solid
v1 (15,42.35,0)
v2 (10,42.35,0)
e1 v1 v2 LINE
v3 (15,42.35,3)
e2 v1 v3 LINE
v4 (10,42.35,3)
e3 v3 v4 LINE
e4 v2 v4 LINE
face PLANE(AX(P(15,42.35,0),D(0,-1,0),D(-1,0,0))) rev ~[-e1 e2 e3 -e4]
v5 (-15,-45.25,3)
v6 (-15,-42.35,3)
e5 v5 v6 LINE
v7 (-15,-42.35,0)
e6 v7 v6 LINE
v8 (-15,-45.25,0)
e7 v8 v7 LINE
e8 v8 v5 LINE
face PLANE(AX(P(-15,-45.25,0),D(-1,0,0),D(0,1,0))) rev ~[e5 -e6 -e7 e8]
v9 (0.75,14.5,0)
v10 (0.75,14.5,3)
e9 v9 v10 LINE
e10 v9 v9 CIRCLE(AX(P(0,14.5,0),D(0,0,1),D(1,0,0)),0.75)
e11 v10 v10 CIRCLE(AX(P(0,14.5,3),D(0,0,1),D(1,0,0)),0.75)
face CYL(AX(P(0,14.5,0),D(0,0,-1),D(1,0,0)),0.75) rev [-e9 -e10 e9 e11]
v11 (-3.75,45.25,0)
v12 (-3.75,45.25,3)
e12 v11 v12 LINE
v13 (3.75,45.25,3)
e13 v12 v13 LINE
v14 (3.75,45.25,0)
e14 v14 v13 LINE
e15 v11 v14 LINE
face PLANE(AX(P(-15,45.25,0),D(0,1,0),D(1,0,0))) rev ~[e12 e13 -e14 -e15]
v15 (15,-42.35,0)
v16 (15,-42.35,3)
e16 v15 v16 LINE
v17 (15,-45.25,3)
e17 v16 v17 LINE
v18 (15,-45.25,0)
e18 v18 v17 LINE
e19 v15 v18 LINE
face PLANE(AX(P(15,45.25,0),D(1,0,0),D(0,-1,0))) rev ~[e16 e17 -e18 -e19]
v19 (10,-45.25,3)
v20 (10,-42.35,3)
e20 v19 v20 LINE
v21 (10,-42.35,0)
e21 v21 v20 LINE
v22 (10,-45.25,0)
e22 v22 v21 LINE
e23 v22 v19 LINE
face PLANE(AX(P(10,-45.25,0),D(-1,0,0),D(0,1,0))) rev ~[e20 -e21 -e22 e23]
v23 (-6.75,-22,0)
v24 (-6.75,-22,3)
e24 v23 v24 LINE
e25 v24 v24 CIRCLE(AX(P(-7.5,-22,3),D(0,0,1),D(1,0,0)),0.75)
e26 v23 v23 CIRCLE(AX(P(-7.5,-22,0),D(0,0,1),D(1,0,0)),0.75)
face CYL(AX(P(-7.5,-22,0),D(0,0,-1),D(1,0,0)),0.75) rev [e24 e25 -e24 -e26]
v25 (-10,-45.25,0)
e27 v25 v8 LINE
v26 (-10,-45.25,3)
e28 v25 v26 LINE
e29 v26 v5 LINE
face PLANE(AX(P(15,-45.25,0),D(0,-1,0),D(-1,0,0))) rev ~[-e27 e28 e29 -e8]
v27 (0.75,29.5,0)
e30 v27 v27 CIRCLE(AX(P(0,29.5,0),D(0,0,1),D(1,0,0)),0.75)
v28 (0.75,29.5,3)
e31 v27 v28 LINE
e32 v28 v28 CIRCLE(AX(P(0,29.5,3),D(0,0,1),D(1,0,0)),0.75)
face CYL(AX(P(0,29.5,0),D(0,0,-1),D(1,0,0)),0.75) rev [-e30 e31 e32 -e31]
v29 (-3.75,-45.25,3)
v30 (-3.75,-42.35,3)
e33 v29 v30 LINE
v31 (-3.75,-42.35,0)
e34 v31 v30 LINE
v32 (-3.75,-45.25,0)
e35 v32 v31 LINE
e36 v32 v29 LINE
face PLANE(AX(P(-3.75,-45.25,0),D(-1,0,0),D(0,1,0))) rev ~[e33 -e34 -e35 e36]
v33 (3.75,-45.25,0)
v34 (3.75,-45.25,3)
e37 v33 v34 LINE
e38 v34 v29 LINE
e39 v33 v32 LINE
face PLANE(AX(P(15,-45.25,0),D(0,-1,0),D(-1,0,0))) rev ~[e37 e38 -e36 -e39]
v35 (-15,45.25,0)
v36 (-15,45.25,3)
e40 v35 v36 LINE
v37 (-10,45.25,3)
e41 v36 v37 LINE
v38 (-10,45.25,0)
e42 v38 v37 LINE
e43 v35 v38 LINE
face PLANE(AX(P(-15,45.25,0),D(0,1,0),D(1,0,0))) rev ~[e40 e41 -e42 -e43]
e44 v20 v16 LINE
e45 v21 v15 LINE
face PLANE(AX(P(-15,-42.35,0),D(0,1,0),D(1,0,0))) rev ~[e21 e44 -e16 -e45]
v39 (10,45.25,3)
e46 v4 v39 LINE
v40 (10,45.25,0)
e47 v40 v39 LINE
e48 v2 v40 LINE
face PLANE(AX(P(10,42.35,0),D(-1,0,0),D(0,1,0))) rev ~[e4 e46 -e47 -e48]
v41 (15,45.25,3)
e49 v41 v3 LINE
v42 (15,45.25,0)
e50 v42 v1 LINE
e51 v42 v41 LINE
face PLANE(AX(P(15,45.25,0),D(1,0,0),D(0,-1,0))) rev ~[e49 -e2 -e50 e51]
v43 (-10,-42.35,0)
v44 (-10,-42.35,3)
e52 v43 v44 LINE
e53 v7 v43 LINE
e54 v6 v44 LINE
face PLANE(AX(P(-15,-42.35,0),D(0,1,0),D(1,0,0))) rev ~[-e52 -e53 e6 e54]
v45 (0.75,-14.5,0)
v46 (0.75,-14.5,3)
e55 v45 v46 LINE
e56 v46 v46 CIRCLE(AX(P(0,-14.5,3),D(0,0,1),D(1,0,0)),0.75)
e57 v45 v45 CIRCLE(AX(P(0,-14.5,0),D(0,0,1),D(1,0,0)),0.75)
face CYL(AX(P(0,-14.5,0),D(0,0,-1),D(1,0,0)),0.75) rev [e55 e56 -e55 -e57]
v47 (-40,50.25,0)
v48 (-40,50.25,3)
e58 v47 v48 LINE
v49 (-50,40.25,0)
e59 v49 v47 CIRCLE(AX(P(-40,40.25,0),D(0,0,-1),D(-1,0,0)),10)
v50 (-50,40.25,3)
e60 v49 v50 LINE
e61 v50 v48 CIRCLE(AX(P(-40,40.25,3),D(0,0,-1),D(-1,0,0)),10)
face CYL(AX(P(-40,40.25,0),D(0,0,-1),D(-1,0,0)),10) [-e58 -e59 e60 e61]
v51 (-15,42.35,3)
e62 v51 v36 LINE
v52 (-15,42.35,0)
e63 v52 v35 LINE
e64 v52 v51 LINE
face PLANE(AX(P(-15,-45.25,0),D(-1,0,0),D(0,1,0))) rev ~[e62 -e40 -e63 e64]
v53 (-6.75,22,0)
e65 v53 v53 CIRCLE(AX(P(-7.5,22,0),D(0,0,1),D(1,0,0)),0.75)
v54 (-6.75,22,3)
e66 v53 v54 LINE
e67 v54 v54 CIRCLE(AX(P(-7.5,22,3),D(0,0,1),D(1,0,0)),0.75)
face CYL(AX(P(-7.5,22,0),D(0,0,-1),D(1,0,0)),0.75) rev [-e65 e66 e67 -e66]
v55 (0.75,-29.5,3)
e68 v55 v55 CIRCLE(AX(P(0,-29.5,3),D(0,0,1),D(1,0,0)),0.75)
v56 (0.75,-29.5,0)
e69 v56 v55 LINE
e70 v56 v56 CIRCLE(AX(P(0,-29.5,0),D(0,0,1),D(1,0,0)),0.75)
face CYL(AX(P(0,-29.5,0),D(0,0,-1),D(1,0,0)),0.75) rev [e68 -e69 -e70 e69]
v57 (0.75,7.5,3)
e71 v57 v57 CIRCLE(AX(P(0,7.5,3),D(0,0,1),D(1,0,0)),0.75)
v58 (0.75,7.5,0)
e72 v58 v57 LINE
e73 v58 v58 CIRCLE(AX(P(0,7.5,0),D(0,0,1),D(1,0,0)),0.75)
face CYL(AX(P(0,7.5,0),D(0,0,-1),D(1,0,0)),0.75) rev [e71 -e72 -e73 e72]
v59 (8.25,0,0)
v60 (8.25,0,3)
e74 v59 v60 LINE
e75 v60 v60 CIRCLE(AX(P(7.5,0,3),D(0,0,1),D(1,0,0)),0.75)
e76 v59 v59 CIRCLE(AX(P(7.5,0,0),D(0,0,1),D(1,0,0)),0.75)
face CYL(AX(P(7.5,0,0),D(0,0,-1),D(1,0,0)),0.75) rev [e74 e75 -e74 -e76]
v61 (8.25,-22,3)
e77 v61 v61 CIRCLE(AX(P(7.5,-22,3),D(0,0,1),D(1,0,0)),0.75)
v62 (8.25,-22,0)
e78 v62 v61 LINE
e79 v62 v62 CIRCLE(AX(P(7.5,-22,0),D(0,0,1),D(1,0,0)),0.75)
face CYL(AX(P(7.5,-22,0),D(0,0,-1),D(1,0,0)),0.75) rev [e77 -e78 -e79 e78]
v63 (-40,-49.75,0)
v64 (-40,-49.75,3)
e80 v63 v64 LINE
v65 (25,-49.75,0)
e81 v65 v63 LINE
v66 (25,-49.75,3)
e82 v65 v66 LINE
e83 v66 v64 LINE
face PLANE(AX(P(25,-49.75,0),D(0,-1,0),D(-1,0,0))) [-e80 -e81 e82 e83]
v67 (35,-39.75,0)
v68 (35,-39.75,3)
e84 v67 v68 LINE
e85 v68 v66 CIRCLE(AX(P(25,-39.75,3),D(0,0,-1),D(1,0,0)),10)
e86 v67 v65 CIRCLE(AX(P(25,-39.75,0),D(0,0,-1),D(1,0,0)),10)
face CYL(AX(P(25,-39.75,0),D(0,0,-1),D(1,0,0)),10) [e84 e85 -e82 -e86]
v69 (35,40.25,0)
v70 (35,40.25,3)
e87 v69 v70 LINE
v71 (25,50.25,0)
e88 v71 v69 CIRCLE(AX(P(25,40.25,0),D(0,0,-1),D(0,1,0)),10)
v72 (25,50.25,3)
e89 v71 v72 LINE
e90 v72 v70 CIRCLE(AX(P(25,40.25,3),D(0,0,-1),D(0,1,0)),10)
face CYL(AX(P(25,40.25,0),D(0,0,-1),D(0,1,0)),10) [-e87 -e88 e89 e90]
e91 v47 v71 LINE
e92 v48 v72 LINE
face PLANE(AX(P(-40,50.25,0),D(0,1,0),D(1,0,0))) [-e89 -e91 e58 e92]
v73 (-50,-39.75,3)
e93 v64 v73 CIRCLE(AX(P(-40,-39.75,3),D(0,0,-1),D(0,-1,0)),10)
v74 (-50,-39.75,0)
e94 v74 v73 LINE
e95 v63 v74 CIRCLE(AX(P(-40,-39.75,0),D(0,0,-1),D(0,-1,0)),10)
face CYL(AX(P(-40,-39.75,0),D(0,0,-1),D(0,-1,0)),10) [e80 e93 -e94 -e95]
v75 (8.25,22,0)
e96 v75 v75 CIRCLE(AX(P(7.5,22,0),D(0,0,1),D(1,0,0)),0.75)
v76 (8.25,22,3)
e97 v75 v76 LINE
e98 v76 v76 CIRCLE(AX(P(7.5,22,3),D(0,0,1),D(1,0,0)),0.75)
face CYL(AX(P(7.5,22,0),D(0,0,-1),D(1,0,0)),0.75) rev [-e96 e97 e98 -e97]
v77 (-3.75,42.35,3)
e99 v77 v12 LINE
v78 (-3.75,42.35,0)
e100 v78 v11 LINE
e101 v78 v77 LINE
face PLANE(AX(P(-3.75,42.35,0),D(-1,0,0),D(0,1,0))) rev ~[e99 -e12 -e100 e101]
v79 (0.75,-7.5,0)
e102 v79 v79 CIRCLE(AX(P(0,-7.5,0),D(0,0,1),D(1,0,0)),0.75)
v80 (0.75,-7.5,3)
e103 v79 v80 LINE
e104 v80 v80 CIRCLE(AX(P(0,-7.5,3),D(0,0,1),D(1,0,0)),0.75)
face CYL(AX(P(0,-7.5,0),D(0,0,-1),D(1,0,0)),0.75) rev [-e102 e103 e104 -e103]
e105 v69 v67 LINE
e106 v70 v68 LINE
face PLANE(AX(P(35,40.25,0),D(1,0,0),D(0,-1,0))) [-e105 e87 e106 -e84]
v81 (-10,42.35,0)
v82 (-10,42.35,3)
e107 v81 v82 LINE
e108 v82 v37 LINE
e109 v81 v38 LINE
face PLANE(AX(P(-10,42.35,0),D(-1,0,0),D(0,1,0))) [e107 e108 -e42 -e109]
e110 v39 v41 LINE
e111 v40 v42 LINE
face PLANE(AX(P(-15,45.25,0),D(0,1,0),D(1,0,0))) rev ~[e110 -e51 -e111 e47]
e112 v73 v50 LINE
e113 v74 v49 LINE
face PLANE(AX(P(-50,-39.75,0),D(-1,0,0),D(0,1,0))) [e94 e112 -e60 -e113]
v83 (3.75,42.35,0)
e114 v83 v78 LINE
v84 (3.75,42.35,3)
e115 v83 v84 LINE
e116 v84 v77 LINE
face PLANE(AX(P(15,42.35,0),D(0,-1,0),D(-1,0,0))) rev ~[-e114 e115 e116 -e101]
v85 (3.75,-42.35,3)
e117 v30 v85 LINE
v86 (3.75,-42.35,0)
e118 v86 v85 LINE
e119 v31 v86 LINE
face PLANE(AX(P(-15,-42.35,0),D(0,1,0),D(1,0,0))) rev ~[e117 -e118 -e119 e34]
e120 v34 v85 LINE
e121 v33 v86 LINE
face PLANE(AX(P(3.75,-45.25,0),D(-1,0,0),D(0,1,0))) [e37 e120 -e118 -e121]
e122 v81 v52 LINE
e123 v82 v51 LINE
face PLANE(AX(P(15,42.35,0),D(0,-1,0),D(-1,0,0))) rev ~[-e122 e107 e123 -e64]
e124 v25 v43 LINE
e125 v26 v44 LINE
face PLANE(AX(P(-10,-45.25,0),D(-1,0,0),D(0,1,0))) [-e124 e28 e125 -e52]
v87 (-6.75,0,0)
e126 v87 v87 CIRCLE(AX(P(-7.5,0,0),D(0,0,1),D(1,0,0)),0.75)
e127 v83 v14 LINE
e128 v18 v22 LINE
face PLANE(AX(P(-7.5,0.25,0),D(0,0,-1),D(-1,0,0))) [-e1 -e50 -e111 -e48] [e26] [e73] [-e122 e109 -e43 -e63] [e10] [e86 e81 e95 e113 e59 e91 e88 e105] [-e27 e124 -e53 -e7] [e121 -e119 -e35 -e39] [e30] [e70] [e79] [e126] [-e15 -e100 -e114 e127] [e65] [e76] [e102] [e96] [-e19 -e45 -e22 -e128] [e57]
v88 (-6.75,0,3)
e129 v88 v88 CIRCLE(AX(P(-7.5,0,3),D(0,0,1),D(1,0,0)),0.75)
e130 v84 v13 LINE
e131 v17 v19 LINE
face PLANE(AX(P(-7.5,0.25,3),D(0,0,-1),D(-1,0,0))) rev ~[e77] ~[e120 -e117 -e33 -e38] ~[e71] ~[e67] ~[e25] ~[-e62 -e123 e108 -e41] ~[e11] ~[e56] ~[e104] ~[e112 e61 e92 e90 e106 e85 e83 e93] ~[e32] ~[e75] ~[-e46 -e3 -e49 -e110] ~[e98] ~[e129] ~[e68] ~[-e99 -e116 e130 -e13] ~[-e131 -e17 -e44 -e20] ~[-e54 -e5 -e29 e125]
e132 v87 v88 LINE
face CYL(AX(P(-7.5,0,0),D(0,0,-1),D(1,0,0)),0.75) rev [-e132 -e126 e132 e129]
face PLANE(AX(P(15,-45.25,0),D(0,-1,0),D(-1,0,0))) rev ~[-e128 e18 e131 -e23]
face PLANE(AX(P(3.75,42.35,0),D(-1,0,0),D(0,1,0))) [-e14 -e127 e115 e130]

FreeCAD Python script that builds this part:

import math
import FreeCAD as App
import Part
import Sketcher

doc = App.newDocument("Part")
body = doc.addObject("PartDesign::Body", "Body")

# Sketch on XY plane
sketch1 = body.newObject("Sketcher::SketchObject", "Sketch")
sketch1.AttachmentSupport = (doc.getObject("XY_Plane"), [""])
sketch1.MapMode = "FlatFace"
sketch1.addGeometry([
    Part.ArcOfCircle(Part.Circle(App.Vector(-40, 40.2, 0), App.Vector(0, 0, 1), 10), math.radians(90), math.radians(180)),  # 0
    Part.LineSegment(App.Vector(-50, 40.2, 0), App.Vector(-50, -39.8, 0)),  # 1
    Part.ArcOfCircle(Part.Circle(App.Vector(-40, -39.8, 0), App.Vector(0, 0, 1), 10), math.radians(180), math.radians(270)),  # 2
    Part.LineSegment(App.Vector(-40, -49.8, 0), App.Vector(25, -49.8, 0)),  # 3
    Part.ArcOfCircle(Part.Circle(App.Vector(25, -39.8, 0), App.Vector(0, 0, 1), 10), math.radians(-90), math.radians(0)),  # 4
    Part.LineSegment(App.Vector(35, -39.8, 0), App.Vector(35, 40.2, 0)),  # 5
    Part.ArcOfCircle(Part.Circle(App.Vector(25, 40.2, 0), App.Vector(0, 0, 1), 10), math.radians(0), math.radians(90)),  # 6
    Part.LineSegment(App.Vector(25, 50.2, 0), App.Vector(-40, 50.2, 0)),  # 7
    Part.LineSegment(App.Vector(-15, -45.2, 0), App.Vector(-15, -42.4, 0)),  # 8
    Part.LineSegment(App.Vector(-15, -42.4, 0), App.Vector(-10, -42.4, 0)),  # 9
    Part.LineSegment(App.Vector(-10, -42.4, 0), App.Vector(-10, -45.2, 0)),  # 10
    Part.LineSegment(App.Vector(-10, -45.2, 0), App.Vector(-15, -45.2, 0)),  # 11
    Part.LineSegment(App.Vector(-15, 42.4, 0), App.Vector(-15, 45.2, 0)),  # 12
    Part.LineSegment(App.Vector(-15, 45.2, 0), App.Vector(-10, 45.2, 0)),  # 13
    Part.LineSegment(App.Vector(-10, 45.2, 0), App.Vector(-10, 42.4, 0)),  # 14
    Part.LineSegment(App.Vector(-10, 42.4, 0), App.Vector(-15, 42.4, 0)),  # 15
    Part.LineSegment(App.Vector(15, -45.2, 0), App.Vector(10, -45.2, 0)),  # 16
    Part.LineSegment(App.Vector(10, -45.2, 0), App.Vector(10, -42.4, 0)),  # 17
    Part.LineSegment(App.Vector(10, -42.4, 0), App.Vector(15, -42.4, 0)),  # 18
    Part.LineSegment(App.Vector(15, -42.4, 0), App.Vector(15, -45.2, 0)),  # 19
    Part.LineSegment(App.Vector(3.8, -45.2, 0), App.Vector(-3.8, -45.2, 0)),  # 20
    Part.LineSegment(App.Vector(-3.8, -45.2, 0), App.Vector(-3.8, -42.4, 0)),  # 21
    Part.LineSegment(App.Vector(-3.8, -42.4, 0), App.Vector(3.8, -42.4, 0)),  # 22
    Part.LineSegment(App.Vector(3.8, -42.4, 0), App.Vector(3.8, -45.2, 0)),  # 23
    Part.LineSegment(App.Vector(15, 45.2, 0), App.Vector(15, 42.4, 0)),  # 24
    Part.LineSegment(App.Vector(15, 42.4, 0), App.Vector(10, 42.4, 0)),  # 25
    Part.LineSegment(App.Vector(10, 42.4, 0), App.Vector(10, 45.2, 0)),  # 26
    Part.LineSegment(App.Vector(10, 45.2, 0), App.Vector(15, 45.2, 0)),  # 27
    Part.LineSegment(App.Vector(-3.8, 45.2, 0), App.Vector(3.8, 45.2, 0)),  # 28
    Part.LineSegment(App.Vector(3.8, 45.2, 0), App.Vector(3.8, 42.4, 0)),  # 29
    Part.LineSegment(App.Vector(3.8, 42.4, 0), App.Vector(-3.8, 42.4, 0)),  # 30
    Part.LineSegment(App.Vector(-3.8, 42.4, 0), App.Vector(-3.8, 45.2, 0)),  # 31
    Part.Circle(App.Vector(0, 29.5, 0), App.Vector(0, 0, 1), 0.8),  # 32
    Part.Circle(App.Vector(7.5, 22, 0), App.Vector(0, 0, 1), 0.8),  # 33
    Part.Circle(App.Vector(-7.5, -22, 0), App.Vector(0, 0, 1), 0.8),  # 34
    Part.Circle(App.Vector(0, -29.5, 0), App.Vector(0, 0, 1), 0.8),  # 35
    Part.Circle(App.Vector(7.5, -22, 0), App.Vector(0, 0, 1), 0.8),  # 36
    Part.Circle(App.Vector(0, -14.5, 0), App.Vector(0, 0, 1), 0.8),  # 37
    Part.Circle(App.Vector(0, -7.5, 0), App.Vector(0, 0, 1), 0.8),  # 38
    Part.Circle(App.Vector(-7.5, 0, 0), App.Vector(0, 0, 1), 0.8),  # 39
    Part.Circle(App.Vector(-7.5, 22, 0), App.Vector(0, 0, 1), 0.8),  # 40
    Part.Circle(App.Vector(0, 7.5, 0), App.Vector(0, 0, 1), 0.8),  # 41
    Part.Circle(App.Vector(0, 14.5, 0), App.Vector(0, 0, 1), 0.8),  # 42
    Part.Circle(App.Vector(7.5, 0, 0), App.Vector(0, 0, 1), 0.8),  # 43
], False)
sketch1.addConstraint([
    Sketcher.Constraint("Tangent", 0, 2, 1, 1),
    Sketcher.Constraint("Tangent", 1, 2, 2, 1),
    Sketcher.Constraint("Tangent", 2, 2, 3, 1),
    Sketcher.Constraint("Tangent", 3, 2, 4, 1),
    Sketcher.Constraint("Tangent", 4, 2, 5, 1),
    Sketcher.Constraint("Tangent", 5, 2, 6, 1),
    Sketcher.Constraint("Tangent", 6, 2, 7, 1),
    Sketcher.Constraint("Tangent", 7, 2, 0, 1),
    Sketcher.Constraint("Coincident", 8, 2, 9, 1),
    Sketcher.Constraint("Coincident", 9, 2, 10, 1),
    Sketcher.Constraint("Coincident", 10, 2, 11, 1),
    Sketcher.Constraint("Coincident", 11, 2, 8, 1),
    Sketcher.Constraint("Coincident", 12, 2, 13, 1),
    Sketcher.Constraint("Coincident", 13, 2, 14, 1),
    Sketcher.Constraint("Coincident", 14, 2, 15, 1),
    Sketcher.Constraint("Coincident", 15, 2, 12, 1),
    Sketcher.Constraint("Coincident", 16, 2, 17, 1),
    Sketcher.Constraint("Coincident", 17, 2, 18, 1),
    Sketcher.Constraint("Coincident", 18, 2, 19, 1),
    Sketcher.Constraint("Coincident", 19, 2, 16, 1),
    Sketcher.Constraint("Coincident", 20, 2, 21, 1),
    Sketcher.Constraint("Coincident", 21, 2, 22, 1),
    Sketcher.Constraint("Coincident", 22, 2, 23, 1),
    Sketcher.Constraint("Coincident", 23, 2, 20, 1),
    Sketcher.Constraint("Coincident", 24, 2, 25, 1),
    Sketcher.Constraint("Coincident", 25, 2, 26, 1),
    Sketcher.Constraint("Coincident", 26, 2, 27, 1),
    Sketcher.Constraint("Coincident", 27, 2, 24, 1),
    Sketcher.Constraint("Coincident", 28, 2, 29, 1),
    Sketcher.Constraint("Coincident", 29, 2, 30, 1),
    Sketcher.Constraint("Coincident", 30, 2, 31, 1),
    Sketcher.Constraint("Coincident", 31, 2, 28, 1),
    Sketcher.Constraint("Vertical", 1),
    Sketcher.Constraint("Horizontal", 3),
    Sketcher.Constraint("Vertical", 5),
    Sketcher.Constraint("Horizontal", 7),
    Sketcher.Constraint("Vertical", 8),
    Sketcher.Constraint("Horizontal", 9),
    Sketcher.Constraint("Vertical", 10),
    Sketcher.Constraint("Horizontal", 11),
    Sketcher.Constraint("Vertical", 12),
    Sketcher.Constraint("Horizontal", 13),
    Sketcher.Constraint("Vertical", 14),
    Sketcher.Constraint("Horizontal", 15),
    Sketcher.Constraint("Horizontal", 16),
    Sketcher.Constraint("Vertical", 17),
    Sketcher.Constraint("Horizontal", 18),
    Sketcher.Constraint("Vertical", 19),
    Sketcher.Constraint("Horizontal", 20),
    Sketcher.Constraint("Vertical", 21),
    Sketcher.Constraint("Horizontal", 22),
    Sketcher.Constraint("Vertical", 23),
    Sketcher.Constraint("Vertical", 24),
    Sketcher.Constraint("Horizontal", 25),
    Sketcher.Constraint("Vertical", 26),
    Sketcher.Constraint("Horizontal", 27),
    Sketcher.Constraint("Horizontal", 28),
    Sketcher.Constraint("Vertical", 29),
    Sketcher.Constraint("Horizontal", 30),
    Sketcher.Constraint("Vertical", 31),
    Sketcher.Constraint("Equal", 0, 2),
    Sketcher.Constraint("Equal", 2, 4),
    Sketcher.Constraint("Equal", 4, 6),
    Sketcher.Constraint("Equal", 32, 33),
    Sketcher.Constraint("Equal", 33, 34),
    Sketcher.Constraint("Equal", 34, 35),
    Sketcher.Constraint("Equal", 35, 36),
    Sketcher.Constraint("Equal", 36, 37),
    Sketcher.Constraint("Equal", 37, 38),
    Sketcher.Constraint("Equal", 38, 39),
    Sketcher.Constraint("Equal", 39, 40),
    Sketcher.Constraint("Equal", 40, 41),
    Sketcher.Constraint("Equal", 41, 42),
    Sketcher.Constraint("Equal", 42, 43),
    Sketcher.Constraint("Symmetric", 33, 3, 34, 3, -1, 1),
    Sketcher.Constraint("Symmetric", 32, 3, 35, 3, -1, 1),
    Sketcher.Constraint("Symmetric", 36, 3, 40, 3, -1, 1),
    Sketcher.Constraint("Symmetric", 38, 3, 41, 3, -1, 1),
    Sketcher.Constraint("Symmetric", 37, 3, 42, 3, -1, 1),
    Sketcher.Constraint("Symmetric", 39, 3, 43, 3, -1, 1),
    Sketcher.Constraint("Symmetric", 13, 2, 16, 2, -1, 1),
    Sketcher.Constraint("Symmetric", 15, 2, 18, 2, -1, 1),
    Sketcher.Constraint("Symmetric", 8, 2, 24, 2, -1, 1),
    Sketcher.Constraint("Symmetric", 10, 2, 26, 2, -1, 1),
    Sketcher.Constraint("Symmetric", 20, 2, 28, 2, -1, 1),
    Sketcher.Constraint("Symmetric", 22, 2, 30, 2, -1, 1),
    Sketcher.Constraint("Symmetric", 34, 3, 36, 3, -2),
    Sketcher.Constraint("Symmetric", 10, 2, 16, 2, -2),
    Sketcher.Constraint("Symmetric", 8, 2, 18, 2, -2),
    Sketcher.Constraint("PointOnObject", 32, 3, -2),
    Sketcher.Constraint("PointOnObject", 37, 3, -2),
    Sketcher.Constraint("PointOnObject", 38, 3, -2),
    Sketcher.Constraint("PointOnObject", 39, 3, -1),
    Sketcher.Constraint("Horizontal", 19, 2, 20, 2),
    Sketcher.Constraint("Horizontal", 18, 2, 21, 2),
    Sketcher.Constraint("Vertical", 34, 3, 39, 3),
    Sketcher.Constraint("Vertical", 23, 2, 28, 2),
    Sketcher.Constraint("Radius", 0, 10.0),
    Sketcher.Constraint("Diameter", 32, 1.5),
    Sketcher.Constraint("DistanceX", 3, 1, 3, 2, 65.0),
    Sketcher.Constraint("DistanceX", 9, 1, 9, 2, 5.0),
    Sketcher.Constraint("DistanceY", 1, 2, 1, 1, 80.0),
    Sketcher.Constraint("DistanceX", 20, 2, 20, 1, 7.5),
    Sketcher.Constraint("DistanceY", 8, 1, 8, 2, 2.9),
    Sketcher.Constraint("DistanceX", 0, 3, -1, 1, 40.0),
    Sketcher.Constraint("DistanceY", -1, 1, 33, 3, 22.0),
    Sketcher.Constraint("DistanceX", 8, 2, -1, 1, 15.0),
    Sketcher.Constraint("DistanceX", 34, 3, 33, 3, 15.0),
    Sketcher.Constraint("DistanceY", 35, 3, 32, 3, 59.0),
    Sketcher.Constraint("DistanceY", 35, 3, 37, 3, 15.0),
    Sketcher.Constraint("DistanceY", 37, 3, 38, 3, 7.0),
    Sketcher.Constraint("DistanceY", 0, 3, 12, 2, 5.0),
    Sketcher.Constraint("DistanceY", 8, 2, 2, 3, 2.6),
])
pad1 = body.newObject("PartDesign::Pad", "Pad")
pad1.Profile = sketch1
pad1.Length = 3

doc.recompute()
